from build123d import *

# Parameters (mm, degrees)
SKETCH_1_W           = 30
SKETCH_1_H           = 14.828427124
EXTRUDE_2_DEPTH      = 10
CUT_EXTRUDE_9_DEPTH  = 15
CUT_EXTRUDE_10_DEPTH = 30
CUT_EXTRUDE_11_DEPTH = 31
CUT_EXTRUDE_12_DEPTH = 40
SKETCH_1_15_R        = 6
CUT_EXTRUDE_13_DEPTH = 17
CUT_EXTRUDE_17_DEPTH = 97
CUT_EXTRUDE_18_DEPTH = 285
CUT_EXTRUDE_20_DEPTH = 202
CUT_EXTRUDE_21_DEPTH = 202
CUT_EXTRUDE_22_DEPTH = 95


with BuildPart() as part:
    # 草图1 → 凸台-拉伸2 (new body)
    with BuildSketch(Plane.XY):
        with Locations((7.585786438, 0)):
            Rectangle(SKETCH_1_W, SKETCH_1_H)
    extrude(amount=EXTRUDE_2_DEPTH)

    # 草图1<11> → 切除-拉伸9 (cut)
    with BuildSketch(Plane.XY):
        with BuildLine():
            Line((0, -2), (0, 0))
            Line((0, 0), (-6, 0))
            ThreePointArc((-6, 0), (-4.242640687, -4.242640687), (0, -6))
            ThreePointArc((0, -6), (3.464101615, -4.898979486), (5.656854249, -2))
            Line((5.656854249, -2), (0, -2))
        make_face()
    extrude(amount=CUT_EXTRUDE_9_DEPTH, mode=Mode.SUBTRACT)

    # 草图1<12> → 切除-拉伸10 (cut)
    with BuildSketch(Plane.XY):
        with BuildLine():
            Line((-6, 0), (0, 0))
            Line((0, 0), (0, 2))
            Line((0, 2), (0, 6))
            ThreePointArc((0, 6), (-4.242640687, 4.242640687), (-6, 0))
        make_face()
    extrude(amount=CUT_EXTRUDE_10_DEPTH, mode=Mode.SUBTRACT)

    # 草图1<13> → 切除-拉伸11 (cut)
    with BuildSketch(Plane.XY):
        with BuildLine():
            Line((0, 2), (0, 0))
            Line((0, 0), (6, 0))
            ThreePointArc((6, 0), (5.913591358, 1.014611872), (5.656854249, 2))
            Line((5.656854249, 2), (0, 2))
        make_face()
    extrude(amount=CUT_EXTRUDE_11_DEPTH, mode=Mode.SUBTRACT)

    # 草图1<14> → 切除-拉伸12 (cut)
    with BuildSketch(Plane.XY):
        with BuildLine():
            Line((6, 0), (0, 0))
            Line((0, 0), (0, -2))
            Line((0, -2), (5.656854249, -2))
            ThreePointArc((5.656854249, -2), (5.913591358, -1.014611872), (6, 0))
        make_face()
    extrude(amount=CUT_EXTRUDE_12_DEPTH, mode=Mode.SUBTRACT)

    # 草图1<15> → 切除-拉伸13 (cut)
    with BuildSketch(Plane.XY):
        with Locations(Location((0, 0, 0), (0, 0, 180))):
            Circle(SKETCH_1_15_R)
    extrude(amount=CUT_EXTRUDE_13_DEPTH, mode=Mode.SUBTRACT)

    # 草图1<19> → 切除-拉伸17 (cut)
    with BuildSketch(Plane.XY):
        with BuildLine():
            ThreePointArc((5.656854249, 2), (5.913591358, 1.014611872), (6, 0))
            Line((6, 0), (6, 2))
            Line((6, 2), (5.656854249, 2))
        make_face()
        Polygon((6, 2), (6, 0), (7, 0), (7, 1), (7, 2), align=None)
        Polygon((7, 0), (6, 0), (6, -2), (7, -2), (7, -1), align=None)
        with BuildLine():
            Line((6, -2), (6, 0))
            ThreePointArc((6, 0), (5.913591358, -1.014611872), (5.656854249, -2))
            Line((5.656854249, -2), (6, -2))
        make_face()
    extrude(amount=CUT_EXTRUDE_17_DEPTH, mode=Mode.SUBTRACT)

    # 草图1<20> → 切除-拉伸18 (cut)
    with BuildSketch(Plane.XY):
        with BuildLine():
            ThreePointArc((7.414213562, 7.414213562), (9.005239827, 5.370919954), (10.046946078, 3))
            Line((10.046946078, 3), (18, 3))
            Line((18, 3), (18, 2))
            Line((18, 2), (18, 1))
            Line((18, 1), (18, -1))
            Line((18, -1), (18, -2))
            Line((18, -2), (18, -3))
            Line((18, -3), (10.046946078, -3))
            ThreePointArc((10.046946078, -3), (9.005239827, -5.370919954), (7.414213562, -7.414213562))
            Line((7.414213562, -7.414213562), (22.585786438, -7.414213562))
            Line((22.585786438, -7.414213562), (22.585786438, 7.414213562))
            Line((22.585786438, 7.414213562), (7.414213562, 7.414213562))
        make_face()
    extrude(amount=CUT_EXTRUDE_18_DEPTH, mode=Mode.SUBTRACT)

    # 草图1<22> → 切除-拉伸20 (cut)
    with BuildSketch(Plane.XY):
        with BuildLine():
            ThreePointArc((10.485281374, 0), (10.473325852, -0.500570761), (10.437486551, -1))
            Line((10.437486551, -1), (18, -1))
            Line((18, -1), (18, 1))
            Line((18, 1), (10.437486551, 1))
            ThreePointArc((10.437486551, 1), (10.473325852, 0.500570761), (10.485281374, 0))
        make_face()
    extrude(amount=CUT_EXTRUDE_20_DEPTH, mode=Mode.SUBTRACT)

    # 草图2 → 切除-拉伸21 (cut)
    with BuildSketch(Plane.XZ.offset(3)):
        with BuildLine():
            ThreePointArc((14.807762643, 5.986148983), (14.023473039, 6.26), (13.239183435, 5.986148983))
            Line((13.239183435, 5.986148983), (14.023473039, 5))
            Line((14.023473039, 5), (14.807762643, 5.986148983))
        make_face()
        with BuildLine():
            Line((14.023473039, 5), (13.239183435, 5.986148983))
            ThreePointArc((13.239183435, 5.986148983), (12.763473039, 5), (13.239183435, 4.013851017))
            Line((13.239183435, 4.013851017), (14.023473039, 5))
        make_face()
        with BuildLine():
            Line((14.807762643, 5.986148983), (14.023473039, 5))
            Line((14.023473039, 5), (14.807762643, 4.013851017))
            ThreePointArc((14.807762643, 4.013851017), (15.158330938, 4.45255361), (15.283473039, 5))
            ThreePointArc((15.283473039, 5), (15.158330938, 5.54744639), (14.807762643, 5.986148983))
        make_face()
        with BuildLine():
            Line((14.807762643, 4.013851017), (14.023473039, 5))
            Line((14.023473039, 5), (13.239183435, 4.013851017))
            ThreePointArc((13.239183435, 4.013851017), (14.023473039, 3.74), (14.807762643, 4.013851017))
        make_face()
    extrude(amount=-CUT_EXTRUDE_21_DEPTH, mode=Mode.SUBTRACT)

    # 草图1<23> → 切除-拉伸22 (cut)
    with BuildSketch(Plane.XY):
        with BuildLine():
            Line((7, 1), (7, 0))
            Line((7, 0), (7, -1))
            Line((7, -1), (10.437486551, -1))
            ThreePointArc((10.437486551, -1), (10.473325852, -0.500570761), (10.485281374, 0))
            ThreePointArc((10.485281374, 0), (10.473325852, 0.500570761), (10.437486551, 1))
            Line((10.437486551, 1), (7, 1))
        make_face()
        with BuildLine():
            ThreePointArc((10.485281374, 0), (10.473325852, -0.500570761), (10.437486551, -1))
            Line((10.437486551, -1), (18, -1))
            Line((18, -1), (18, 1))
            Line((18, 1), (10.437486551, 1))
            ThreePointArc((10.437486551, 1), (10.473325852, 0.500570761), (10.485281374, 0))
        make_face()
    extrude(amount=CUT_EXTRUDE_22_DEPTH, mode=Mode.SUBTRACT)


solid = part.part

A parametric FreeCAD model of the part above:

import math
import FreeCAD as App
import Part
import Sketcher

V = App.Vector
Q = App.Units.Quantity

doc = App.newDocument("Part")
body = doc.addObject("PartDesign::Body", "Body")

# Sketch on XY plane
sketch1 = body.newObject("Sketcher::SketchObject", "Sketch")
sketch1.AttachmentSupport = (doc.getObject("XY_Plane"), [""])
sketch1.MapMode = "FlatFace"
sketch1.addGeometry([
    Part.LineSegment(V(-7.414214, 7.414214, 0), V(-7.414214, -7.414214, 0)),
    Part.LineSegment(V(-7.414214, -7.414214, 0), V(22.585786, -7.414214, 0)),
    Part.LineSegment(V(22.585786, -7.414214, 0), V(22.585786, 7.414214, 0)),
    Part.LineSegment(V(22.585786, 7.414214, 0), V(-7.414214, 7.414214, 0)),
], False)
sketch1.addConstraint([
    Sketcher.Constraint("Coincident", 0, 2, 1, 1),
    Sketcher.Constraint("Coincident", 1, 2, 2, 1),
    Sketcher.Constraint("Coincident", 2, 2, 3, 1),
    Sketcher.Constraint("Coincident", 3, 2, 0, 1),
    Sketcher.Constraint("Vertical", 0),
    Sketcher.Constraint("Horizontal", 1),
    Sketcher.Constraint("Vertical", 2),
    Sketcher.Constraint("Horizontal", 3),
    Sketcher.Constraint("DistanceX", 1, 1, 1, 2, Q("30 mm")),
    Sketcher.Constraint("DistanceY", 0, 2, 0, 1, Q("14.828427 mm")),
    Sketcher.Constraint("DistanceX", 0, 2, -1, 1, Q("7.414214 mm")),
    Sketcher.Constraint("DistanceY", 0, 2, -1, 1, Q("7.414214 mm")),
])
pad1 = body.newObject("PartDesign::Pad", "Pad")
pad1.Profile = sketch1
pad1.Length = 10

# Sketch on XY plane
sketch2 = body.newObject("Sketcher::SketchObject", "Sketch001")
sketch2.AttachmentSupport = (doc.getObject("XY_Plane"), [""])
sketch2.MapMode = "FlatFace"
sketch2.addGeometry([
    Part.LineSegment(V(0, -2, 0), V(0, 0, 0)),  # 0
    Part.LineSegment(V(0, 0, 0), V(-6, 0, 0)),  # 1
    Part.ArcOfCircle(Part.Circle(V(0, 0, 0), V(0, 0, 1), 6), math.radians(180), math.radians(270)),  # 2
    Part.ArcOfCircle(Part.Circle(V(0, 0, 0), V(0, 0, 1), 6), math.radians(-90), math.radians(-19.471221)),  # 3
    Part.LineSegment(V(5.656854, -2, 0), V(0, -2, 0)),  # 4
], False)
sketch2.addConstraint([
    Sketcher.Constraint("Coincident", 0, 2, 1, 1),
    Sketcher.Constraint("Coincident", 1, 2, 2, 1),
    Sketcher.Constraint("Tangent", 2, 2, 3, 1),
    Sketcher.Constraint("Coincident", 3, 2, 4, 1),
    Sketcher.Constraint("Coincident", 4, 2, 0, 1),
    Sketcher.Constraint("Vertical", 0),
    Sketcher.Constraint("Horizontal", 1),
    Sketcher.Constraint("Horizontal", 4),
    Sketcher.Constraint("Coincident", 2, 3, -1, 1),
    Sketcher.Constraint("Coincident", 0, 2, -1, 1),
    Sketcher.Constraint("Equal", 2, 3),
    Sketcher.Constraint("PointOnObject", 2, 2, -2),
    Sketcher.Constraint("Radius", 2, Q("6 mm")),
    Sketcher.Constraint("DistanceY", 0, 1, 0, 2, Q("2 mm")),
])
pocket1 = body.newObject("PartDesign::Pocket", "Pocket")
pocket1.Profile = sketch2
pocket1.Length = 15
pocket1.Reversed = True

# Sketch on XY plane
sketch3 = body.newObject("Sketcher::SketchObject", "Sketch002")
sketch3.AttachmentSupport = (doc.getObject("XY_Plane"), [""])
sketch3.MapMode = "FlatFace"
sketch3.addGeometry([
    Part.LineSegment(V(-6, 0, 0), V(0, 0, 0)),
    Part.LineSegment(V(0, 0, 0), V(0, 6, 0)),
    Part.ArcOfCircle(Part.Circle(V(0, 0, 0), V(0, 0, 1), 6), math.radians(90), math.radians(180)),
], False)
sketch3.addConstraint([
    Sketcher.Constraint("Coincident", 0, 2, 1, 1),
    Sketcher.Constraint("Coincident", 1, 2, 2, 1),
    Sketcher.Constraint("Coincident", 2, 2, 0, 1),
    Sketcher.Constraint("Horizontal", 0),
    Sketcher.Constraint("Vertical", 1),
    Sketcher.Constraint("Coincident", 2, 3, -1, 1),
    Sketcher.Constraint("Coincident", 0, 2, -1, 1),
    Sketcher.Constraint("Radius", 2, Q("6 mm")),
])
pocket2 = body.newObject("PartDesign::Pocket", "Pocket001")
pocket2.Profile = sketch3
pocket2.Length = 30
pocket2.Reversed = True

# Sketch on XY plane
sketch4 = body.newObject("Sketcher::SketchObject", "Sketch003")
sketch4.AttachmentSupport = (doc.getObject("XY_Plane"), [""])
sketch4.MapMode = "FlatFace"
sketch4.addGeometry([
    Part.LineSegment(V(0, 2, 0), V(0, 0, 0)),
    Part.LineSegment(V(0, 0, 0), V(6, 0, 0)),
    Part.ArcOfCircle(Part.Circle(V(0, 0, 0), V(0, 0, 1), 6), math.radians(0), math.radians(19.471221)),
    Part.LineSegment(V(5.656854, 2, 0), V(0, 2, 0)),
], False)
sketch4.addConstraint([
    Sketcher.Constraint("Coincident", 0, 2, 1, 1),
    Sketcher.Constraint("Coincident", 1, 2, 2, 1),
    Sketcher.Constraint("Coincident", 2, 2, 3, 1),
    Sketcher.Constraint("Coincident", 3, 2, 0, 1),
    Sketcher.Constraint("Vertical", 0),
    Sketcher.Constraint("Horizontal", 1),
    Sketcher.Constraint("Horizontal", 3),
    Sketcher.Constraint("Coincident", 2, 3, -1, 1),
    Sketcher.Constraint("Coincident", 0, 2, -1, 1),
    Sketcher.Constraint("Radius", 2, Q("6 mm")),
    Sketcher.Constraint("DistanceY", 0, 2, 0, 1, Q("2 mm")),
])
pocket3 = body.newObject("PartDesign::Pocket", "Pocket002")
pocket3.Profile = sketch4
pocket3.Length = 31
pocket3.Reversed = True

# Sketch on XY plane
sketch5 = body.newObject("Sketcher::SketchObject", "Sketch004")
sketch5.AttachmentSupport = (doc.getObject("XY_Plane"), [""])
sketch5.MapMode = "FlatFace"
sketch5.addGeometry([
    Part.LineSegment(V(6, 0, 0), V(0, 0, 0)),
    Part.LineSegment(V(0, 0, 0), V(0, -2, 0)),
    Part.LineSegment(V(0, -2, 0), V(5.656854, -2, 0)),
    Part.ArcOfCircle(Part.Circle(V(0, 0, 0), V(0, 0, 1), 6), math.radians(-19.471221), math.radians(0)),
], False)
sketch5.addConstraint([
    Sketcher.Constraint("Coincident", 0, 2, 1, 1),
    Sketcher.Constraint("Coincident", 1, 2, 2, 1),
    Sketcher.Constraint("Coincident", 2, 2, 3, 1),
    Sketcher.Constraint("Coincident", 3, 2, 0, 1),
    Sketcher.Constraint("Horizontal", 0),
    Sketcher.Constraint("Vertical", 1),
    Sketcher.Constraint("Horizontal", 2),
    Sketcher.Constraint("Coincident", 3, 3, -1, 1),
    Sketcher.Constraint("Coincident", 0, 2, -1, 1),
    Sketcher.Constraint("Radius", 3, Q("6 mm")),
    Sketcher.Constraint("DistanceY", 1, 2, 1, 1, Q("2 mm")),
])
pocket4 = body.newObject("PartDesign::Pocket", "Pocket003")
pocket4.Profile = sketch5
pocket4.Length = 40
pocket4.Reversed = True

# Sketch on XY plane
sketch6 = body.newObject("Sketcher::SketchObject", "Sketch005")
sketch6.AttachmentSupport = (doc.getObject("XY_Plane"), [""])
sketch6.MapMode = "FlatFace"
sketch6.addGeometry(Part.Circle(V(0, 0, 0), V(0, 0, 1), 6), False)
sketch6.addConstraint([
    Sketcher.Constraint("Coincident", 0, 3, -1, 1),
    Sketcher.Constraint("Diameter", 0, Q("12 mm")),
])
pocket5 = body.newObject("PartDesign::Pocket", "Pocket004")
pocket5.Profile = sketch6
pocket5.Length = 17
pocket5.Reversed = True

# Sketch on XY plane
sketch7 = body.newObject("Sketcher::SketchObject", "Sketch006")
sketch7.AttachmentSupport = (doc.getObject("XY_Plane"), [""])
sketch7.MapMode = "FlatFace"
sketch7.addGeometry([
    Part.ArcOfCircle(Part.Circle(V(0, 0, 0), V(0, 0, 1), 6), math.radians(0), math.radians(19.471221)),  # 0
    Part.ArcOfCircle(Part.Circle(V(0, 0, 0), V(0, 0, 1), 6), math.radians(-19.471221), math.radians(0)),  # 1
    Part.LineSegment(V(5.656854, -2, 0), V(7, -2, 0)),  # 2
    Part.LineSegment(V(7, -2, 0), V(7, 2, 0)),  # 3
    Part.LineSegment(V(7, 2, 0), V(5.656854, 2, 0)),  # 4
], False)
sketch7.addConstraint([
    Sketcher.Constraint("Tangent", 0, 1, 1, 2),
    Sketcher.Constraint("Coincident", 1, 1, 2, 1),
    Sketcher.Constraint("Coincident", 2, 2, 3, 1),
    Sketcher.Constraint("Coincident", 3, 2, 4, 1),
    Sketcher.Constraint("Coincident", 4, 2, 0, 2),
    Sketcher.Constraint("Horizontal", 2),
    Sketcher.Constraint("Vertical", 3),
    Sketcher.Constraint("Horizontal", 4),
    Sketcher.Constraint("Coincident", 0, 3, -1, 1),
    Sketcher.Constraint("Equal", 0, 1),
    Sketcher.Constraint("PointOnObject", 0, 1, -1),
    Sketcher.Constraint("Vertical", 1, 1, 4, 2),
    Sketcher.Constraint("Radius", 0, Q("6 mm")),
    Sketcher.Constraint("DistanceY", 3, 1, 3, 2, Q("4 mm")),
    Sketcher.Constraint("DistanceX", -1, 1, 2, 2, Q("7 mm")),
])
pocket6 = body.newObject("PartDesign::Pocket", "Pocket005")
pocket6.Profile = sketch7
pocket6.Length = 97
pocket6.Reversed = True

# Sketch on XY plane
sketch8 = body.newObject("Sketcher::SketchObject", "Sketch007")
sketch8.AttachmentSupport = (doc.getObject("XY_Plane"), [""])
sketch8.MapMode = "FlatFace"
sketch8.addGeometry([
    Part.ArcOfCircle(Part.Circle(V(0, 0, 0), V(0, 0, 1), 10.485281), math.radians(16.62553), math.radians(45)),  # 0
    Part.LineSegment(V(10.046946, 3, 0), V(18, 3, 0)),  # 1
    Part.LineSegment(V(18, 3, 0), V(18, -3, 0)),  # 2
    Part.LineSegment(V(18, -3, 0), V(10.046946, -3, 0)),  # 3
    Part.ArcOfCircle(Part.Circle(V(0, 0, 0), V(0, 0, 1), 10.485281), math.radians(-45), math.radians(-16.62553)),  # 4
    Part.LineSegment(V(7.414214, -7.414214, 0), V(22.585786, -7.414214, 0)),  # 5
    Part.LineSegment(V(22.585786, -7.414214, 0), V(22.585786, 7.414214, 0)),  # 6
    Part.LineSegment(V(22.585786, 7.414214, 0), V(7.414214, 7.414214, 0)),  # 7
], False)
sketch8.addConstraint([
    Sketcher.Constraint("Coincident", 0, 1, 1, 1),
    Sketcher.Constraint("Coincident", 1, 2, 2, 1),
    Sketcher.Constraint("Coincident", 2, 2, 3, 1),
    Sketcher.Constraint("Coincident", 3, 2, 4, 2),
    Sketcher.Constraint("Coincident", 4, 1, 5, 1),
    Sketcher.Constraint("Coincident", 5, 2, 6, 1),
    Sketcher.Constraint("Coincident", 6, 2, 7, 1),
    Sketcher.Constraint("Coincident", 7, 2, 0, 2),
    Sketcher.Constraint("Horizontal", 1),
    Sketcher.Constraint("Vertical", 2),
    Sketcher.Constraint("Horizontal", 3),
    Sketcher.Constraint("Horizontal", 5),
    Sketcher.Constraint("Vertical", 6),
    Sketcher.Constraint("Horizontal", 7),
    Sketcher.Constraint("Coincident", 0, 3, -1, 1),
    Sketcher.Constraint("Coincident", 4, 3, -1, 1),
    Sketcher.Constraint("Equal", 0, 4),
    Sketcher.Constraint("Vertical", 0, 1, 3, 2),
    Sketcher.Constraint("Vertical", 4, 1, 7, 2),
    Sketcher.Constraint("DistanceY", 2, 2, 2, 1, Q("6 mm")),
    Sketcher.Constraint("DistanceX", -1, 1, 1, 2, Q("18 mm")),
    Sketcher.Constraint("Radius", 0, Q("10.485281 mm")),
    Sketcher.Constraint("DistanceX", 5, 1, 5, 2, Q("15.171573 mm")),
    Sketcher.Constraint("DistanceY", 6, 1, 6, 2, Q("14.828427 mm")),
])
pocket7 = body.newObject("PartDesign::Pocket", "Pocket006")
pocket7.Profile = sketch8
pocket7.Length = 285
pocket7.Reversed = True

# Sketch on XY plane
sketch9 = body.newObject("Sketcher::SketchObject", "Sketch008")
sketch9.AttachmentSupport = (doc.getObject("XY_Plane"), [""])
sketch9.MapMode = "FlatFace"
sketch9.addGeometry([
    Part.ArcOfCircle(Part.Circle(V(0, 0, 0), V(0, 0, 1), 10.485282), math.radians(-5.472719), math.radians(0)),  # 0
    Part.LineSegment(V(10.437487, -1, 0), V(18, -1, 0)),  # 1
    Part.LineSegment(V(18, -1, 0), V(18, 1, 0)),  # 2
    Part.LineSegment(V(18, 1, 0), V(10.437487, 1, 0)),  # 3
    Part.ArcOfCircle(Part.Circle(V(0, 0, 0), V(0, 0, 1), 10.485282), math.radians(0), math.radians(5.472719)),  # 4
], False)
sketch9.addConstraint([
    Sketcher.Constraint("Coincident", 0, 1, 1, 1),
    Sketcher.Constraint("Coincident", 1, 2, 2, 1),
    Sketcher.Constraint("Coincident", 2, 2, 3, 1),
    Sketcher.Constraint("Coincident", 3, 2, 4, 2),
    Sketcher.Constraint("Tangent", 4, 1, 0, 2),
    Sketcher.Constraint("Horizontal", 1),
    Sketcher.Constraint("Vertical", 2),
    Sketcher.Constraint("Horizontal", 3),
    Sketcher.Constraint("Coincident", 0, 3, -1, 1),
    Sketcher.Constraint("Equal", 0, 4),
    Sketcher.Constraint("PointOnObject", 4, 1, -1),
    Sketcher.Constraint("Vertical", 0, 1, 3, 2),
    Sketcher.Constraint("DistanceY", 2, 1, 2, 2, Q("2 mm")),
    Sketcher.Constraint("DistanceX", -1, 1, 1, 2, Q("18 mm")),
    Sketcher.Constraint("Radius", 0, Q("10.485282 mm")),
])
pocket8 = body.newObject("PartDesign::Pocket", "Pocket007")
pocket8.Profile = sketch9
pocket8.Length = 202
pocket8.Reversed = True

# Sketch on XZ plane
sketch10 = body.newObject("Sketcher::SketchObject", "Sketch009")
sketch10.AttachmentSupport = (doc.getObject("XZ_Plane"), [""])
sketch10.MapMode = "FlatFace"
sketch10.AttachmentOffset = App.Placement(V(0, 0, 3), App.Rotation())
sketch10.addGeometry([
    Part.ArcOfCircle(Part.Circle(V(14.023473, 5, 0), V(0, 0, 1), 1.26), math.radians(-128.495419), math.radians(-51.504581)),  # 0
    Part.ArcOfCircle(Part.Circle(V(14.023473, 5, 0), V(0, 0, 1), 1.26), math.radians(-51.504581), math.radians(0)),  # 1
    Part.ArcOfCircle(Part.Circle(V(14.023473, 5, 0), V(0, 0, 1), 1.26), math.radians(0), math.radians(51.504581)),  # 2
    Part.ArcOfCircle(Part.Circle(V(14.023473, 5, 0), V(0, 0, 1), 1.26), math.radians(51.504581), math.radians(128.495419)),  # 3
    Part.ArcOfCircle(Part.Circle(V(14.023473, 5, 0), V(0, 0, 1), 1.26), math.radians(128.495419), math.radians(231.504581)),  # 4
], False)
sketch10.addConstraint([
    Sketcher.Constraint("Tangent", 0, 2, 1, 1),
    Sketcher.Constraint("Tangent", 1, 2, 2, 1),
    Sketcher.Constraint("Tangent", 2, 2, 3, 1),
    Sketcher.Constraint("Tangent", 3, 2, 4, 1),
    Sketcher.Constraint("Tangent", 4, 2, 0, 1),
    Sketcher.Constraint("Coincident", 2, 3, 0, 3),
    Sketcher.Constraint("Horizontal", 4, 3, 1, 2),
    Sketcher.Constraint("Horizontal", 2, 2, 3, 2),
    Sketcher.Constraint("Horizontal", 0, 2, 4, 2),
    Sketcher.Constraint("Vertical", 0, 2, 2, 2),
    Sketcher.Constraint("Radius", 0, Q("1.26 mm")),
    Sketcher.Constraint("DistanceY", -1, 1, 0, 3, Q("5 mm")),
    Sketcher.Constraint("DistanceY", -1, 1, 0, 2, Q("4.013851 mm")),
    Sketcher.Constraint("DistanceX", -1, 1, 0, 3, Q("14.023473 mm")),
])
pocket9 = body.newObject("PartDesign::Pocket", "Pocket008")
pocket9.Profile = sketch10
pocket9.Length = 202

# Sketch on XY plane
sketch11 = body.newObject("Sketcher::SketchObject", "Sketch010")
sketch11.AttachmentSupport = (doc.getObject("XY_Plane"), [""])
sketch11.MapMode = "FlatFace"
sketch11.addGeometry([
    Part.LineSegment(V(7, 1, 0), V(7, -1, 0)),
    Part.LineSegment(V(7, -1, 0), V(18, -1, 0)),
    Part.LineSegment(V(18, -1, 0), V(18, 1, 0)),
    Part.LineSegment(V(18, 1, 0), V(7, 1, 0)),
], False)
sketch11.addConstraint([
    Sketcher.Constraint("Coincident", 0, 2, 1, 1),
    Sketcher.Constraint("Coincident", 1, 2, 2, 1),
    Sketcher.Constraint("Coincident", 2, 2, 3, 1),
    Sketcher.Constraint("Coincident", 3, 2, 0, 1),
    Sketcher.Constraint("Vertical", 0),
    Sketcher.Constraint("Horizontal", 1),
    Sketcher.Constraint("Vertical", 2),
    Sketcher.Constraint("Horizontal", 3),
    Sketcher.Constraint("DistanceX", 1, 1, 1, 2, Q("11 mm")),
    Sketcher.Constraint("DistanceY", 0, 2, 0, 1, Q("2 mm")),
    Sketcher.Constraint("DistanceX", -1, 1, 0, 2, Q("7 mm")),
    Sketcher.Constraint("DistanceY", 0, 2, -1, 1, Q("1 mm")),
])
pocket10 = body.newObject("PartDesign::Pocket", "Pocket009")
pocket10.Profile = sketch11
pocket10.Length = 95
pocket10.Reversed = True

doc.recompute()
